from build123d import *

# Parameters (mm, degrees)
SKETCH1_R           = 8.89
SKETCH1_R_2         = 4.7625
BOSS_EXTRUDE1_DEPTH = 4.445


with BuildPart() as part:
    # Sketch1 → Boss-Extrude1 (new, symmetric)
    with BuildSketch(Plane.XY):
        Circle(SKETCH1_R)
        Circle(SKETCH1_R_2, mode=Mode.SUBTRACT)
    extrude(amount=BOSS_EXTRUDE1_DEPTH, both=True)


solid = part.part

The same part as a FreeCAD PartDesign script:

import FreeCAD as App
import Part
import Sketcher
Q = App.Units.Quantity

doc = App.newDocument("Part")
body = doc.addObject("PartDesign::Body", "Body")

# Sketch on XY plane
sketch1 = body.newObject("Sketcher::SketchObject", "Sketch")
sketch1.AttachmentSupport = (doc.getObject("XY_Plane"), [""])
sketch1.MapMode = "FlatFace"
sketch1.addGeometry([
    Part.Circle(App.Vector(0, 0, 0), App.Vector(0, 0, 1), 8.9),
    Part.Circle(App.Vector(0, 0, 0), App.Vector(0, 0, 1), 4.8),
], False)
sketch1.addConstraint([
    Sketcher.Constraint("Coincident", 0, 3, -1, 1),
    Sketcher.Constraint("Coincident", 1, 3, -1, 1),
    Sketcher.Constraint("Diameter", 0, Q("0.7 in")),
    Sketcher.Constraint("Diameter", 1, Q("0.375 in")),
])
pad1 = body.newObject("PartDesign::Pad", "Pad")
pad1.Profile = sketch1
pad1.Length = Q("0.35 in")
pad1.Midplane = True

doc.recompute()
